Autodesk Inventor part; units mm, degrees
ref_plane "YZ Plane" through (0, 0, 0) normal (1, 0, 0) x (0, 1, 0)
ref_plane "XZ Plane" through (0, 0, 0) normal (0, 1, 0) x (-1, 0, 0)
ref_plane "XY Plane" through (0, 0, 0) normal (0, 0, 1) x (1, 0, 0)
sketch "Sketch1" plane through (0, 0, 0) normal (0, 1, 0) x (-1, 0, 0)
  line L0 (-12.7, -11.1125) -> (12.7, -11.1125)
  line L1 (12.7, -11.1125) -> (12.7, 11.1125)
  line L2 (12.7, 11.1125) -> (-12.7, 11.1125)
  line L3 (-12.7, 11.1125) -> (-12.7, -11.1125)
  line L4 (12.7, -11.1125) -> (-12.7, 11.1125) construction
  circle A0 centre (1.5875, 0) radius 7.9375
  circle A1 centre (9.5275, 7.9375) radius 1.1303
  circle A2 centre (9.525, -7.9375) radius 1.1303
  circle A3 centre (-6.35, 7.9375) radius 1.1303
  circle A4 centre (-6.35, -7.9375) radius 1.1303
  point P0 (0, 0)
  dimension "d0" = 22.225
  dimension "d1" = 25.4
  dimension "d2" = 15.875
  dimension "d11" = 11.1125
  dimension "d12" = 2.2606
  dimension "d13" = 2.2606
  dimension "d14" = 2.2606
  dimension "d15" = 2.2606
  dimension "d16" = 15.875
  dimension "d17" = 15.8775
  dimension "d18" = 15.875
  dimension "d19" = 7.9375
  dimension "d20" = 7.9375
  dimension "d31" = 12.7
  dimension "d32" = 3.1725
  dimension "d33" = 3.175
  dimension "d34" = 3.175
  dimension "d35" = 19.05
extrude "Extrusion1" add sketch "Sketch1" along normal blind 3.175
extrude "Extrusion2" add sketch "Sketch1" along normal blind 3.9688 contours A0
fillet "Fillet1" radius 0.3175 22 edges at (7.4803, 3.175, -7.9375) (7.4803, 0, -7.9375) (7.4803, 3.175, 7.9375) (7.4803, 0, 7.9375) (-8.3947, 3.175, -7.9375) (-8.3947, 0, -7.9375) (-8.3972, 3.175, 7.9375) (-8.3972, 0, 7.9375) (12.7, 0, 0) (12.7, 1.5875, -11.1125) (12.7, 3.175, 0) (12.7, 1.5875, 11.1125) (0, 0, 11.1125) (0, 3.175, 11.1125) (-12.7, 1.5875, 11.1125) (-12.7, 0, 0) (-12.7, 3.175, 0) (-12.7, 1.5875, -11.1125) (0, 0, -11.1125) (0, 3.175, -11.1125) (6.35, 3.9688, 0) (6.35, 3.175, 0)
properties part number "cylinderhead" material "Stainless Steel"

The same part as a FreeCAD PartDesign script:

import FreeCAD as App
import Part
import Sketcher

V = App.Vector
Q = App.Units.Quantity


def add_polygon(sketch, points):
    """Adds a closed chain of lines whose ends are joined by coincident constraints."""
    first, n = sketch.GeometryCount, len(points)
    for a, b in zip(points, points[1:] + points[:1]):
        sketch.addGeometry(Part.LineSegment(App.Vector(*a, 0), App.Vector(*b, 0)), False)
    for i in range(n):
        sketch.addConstraint(Sketcher.Constraint("Coincident", first + i, 2, first + (i + 1) % n, 1))

doc = App.newDocument("Part")
body = doc.addObject("PartDesign::Body", "Body")

# Sketch on XZ plane
sketch1 = body.newObject("Sketcher::SketchObject", "Sketch")
sketch1.AttachmentSupport = (doc.getObject("XZ_Plane"), [""])
sketch1.MapMode = "FlatFace"
add_polygon(sketch1, [(12.7, 11.1), (12.7, -11.1), (-12.7, -11.1), (-12.7, 11.1)])  # lines 0-3
sketch1.addGeometry(Part.Circle(V(6.3, -7.9, 0), V(0, 0, 1), 1.1), False)  # 4
sketch1.addGeometry(Part.Circle(V(-9.5, -7.9, 0), V(0, 0, 1), 1.1), False)  # 5
sketch1.addGeometry(Part.Circle(V(6.3, 7.9, 0), V(0, 0, 1), 1.1), False)  # 6
sketch1.addGeometry(Part.Circle(V(-1.6, 0, 0), V(0, 0, 1), 7.9), False)  # 7
sketch1.addGeometry(Part.Circle(V(-9.5, 7.9, 0), V(0, 0, 1), 1.1), False)  # 8
sketch1.addConstraint([
    Sketcher.Constraint("Vertical", 0),
    Sketcher.Constraint("Horizontal", 1),
    Sketcher.Constraint("Vertical", 2),
    Sketcher.Constraint("Horizontal", 3),
    Sketcher.Constraint("Equal", 4, 5),
    Sketcher.Constraint("Equal", 5, 6),
    Sketcher.Constraint("Equal", 6, 8),
    Sketcher.Constraint("Symmetric", 0, 2, 2, 2, -1, 1),
    Sketcher.Constraint("Symmetric", 4, 3, 6, 3, -1),
    Sketcher.Constraint("PointOnObject", 7, 3, -1),
    Sketcher.Constraint("Horizontal", 4, 3, 5, 3),
    Sketcher.Constraint("Horizontal", 6, 3, 8, 3),
    Sketcher.Constraint("DistanceX", 1, 2, 1, 1, Q("1 in")),
    Sketcher.Constraint("Diameter", 4, Q("0.089 in")),
    Sketcher.Constraint("Diameter", 7, Q("0.625 in")),
    Sketcher.Constraint("DistanceY", 0, 2, 0, 1, Q("0.875 in")),
    Sketcher.Constraint("DistanceY", 0, 2, 6, 3, Q("0.75 in")),
    Sketcher.Constraint("DistanceX", 1, 2, 4, 3, Q("0.75 in")),
    Sketcher.Constraint("DistanceX", 5, 3, 4, 3, Q("0.625 in")),
    Sketcher.Constraint("DistanceX", 7, 3, 4, 3, Q("0.3125 in")),
    Sketcher.Constraint("DistanceX", 8, 3, 6, 3, Q("0.6251 in")),
])
pad1 = body.newObject("PartDesign::Pad", "Pad")
pad1.Profile = sketch1
pad1.Length = Q("0.125 in")
pad1.Reversed = True

# Sketch on XZ plane
sketch2 = body.newObject("Sketcher::SketchObject", "Sketch001")
sketch2.AttachmentSupport = (doc.getObject("XZ_Plane"), [""])
sketch2.MapMode = "FlatFace"
sketch2.addGeometry(Part.Circle(V(-2, 0, 0), V(0, 0, 1), 8), False)
sketch2.addConstraint([
    Sketcher.Constraint("PointOnObject", 0, 3, -1),
    Sketcher.Constraint("Diameter", 0, Q("0.625 in")),
    Sketcher.Constraint("DistanceX", 0, 3, -1, 1, Q("0.0625 in")),
])
pad2 = body.newObject("PartDesign::Pad", "Pad001")
pad2.Profile = sketch2
pad2.Length = Q("0.156252 in")
pad2.Reversed = True
doc.recompute()

fillet = body.newObject("PartDesign::Fillet", "Fillet")
fillet.Base = (pad2, ["Edge1"])
fillet.UseAllEdges = True
fillet.Radius = Q("0.0125 in")

doc.recompute()
